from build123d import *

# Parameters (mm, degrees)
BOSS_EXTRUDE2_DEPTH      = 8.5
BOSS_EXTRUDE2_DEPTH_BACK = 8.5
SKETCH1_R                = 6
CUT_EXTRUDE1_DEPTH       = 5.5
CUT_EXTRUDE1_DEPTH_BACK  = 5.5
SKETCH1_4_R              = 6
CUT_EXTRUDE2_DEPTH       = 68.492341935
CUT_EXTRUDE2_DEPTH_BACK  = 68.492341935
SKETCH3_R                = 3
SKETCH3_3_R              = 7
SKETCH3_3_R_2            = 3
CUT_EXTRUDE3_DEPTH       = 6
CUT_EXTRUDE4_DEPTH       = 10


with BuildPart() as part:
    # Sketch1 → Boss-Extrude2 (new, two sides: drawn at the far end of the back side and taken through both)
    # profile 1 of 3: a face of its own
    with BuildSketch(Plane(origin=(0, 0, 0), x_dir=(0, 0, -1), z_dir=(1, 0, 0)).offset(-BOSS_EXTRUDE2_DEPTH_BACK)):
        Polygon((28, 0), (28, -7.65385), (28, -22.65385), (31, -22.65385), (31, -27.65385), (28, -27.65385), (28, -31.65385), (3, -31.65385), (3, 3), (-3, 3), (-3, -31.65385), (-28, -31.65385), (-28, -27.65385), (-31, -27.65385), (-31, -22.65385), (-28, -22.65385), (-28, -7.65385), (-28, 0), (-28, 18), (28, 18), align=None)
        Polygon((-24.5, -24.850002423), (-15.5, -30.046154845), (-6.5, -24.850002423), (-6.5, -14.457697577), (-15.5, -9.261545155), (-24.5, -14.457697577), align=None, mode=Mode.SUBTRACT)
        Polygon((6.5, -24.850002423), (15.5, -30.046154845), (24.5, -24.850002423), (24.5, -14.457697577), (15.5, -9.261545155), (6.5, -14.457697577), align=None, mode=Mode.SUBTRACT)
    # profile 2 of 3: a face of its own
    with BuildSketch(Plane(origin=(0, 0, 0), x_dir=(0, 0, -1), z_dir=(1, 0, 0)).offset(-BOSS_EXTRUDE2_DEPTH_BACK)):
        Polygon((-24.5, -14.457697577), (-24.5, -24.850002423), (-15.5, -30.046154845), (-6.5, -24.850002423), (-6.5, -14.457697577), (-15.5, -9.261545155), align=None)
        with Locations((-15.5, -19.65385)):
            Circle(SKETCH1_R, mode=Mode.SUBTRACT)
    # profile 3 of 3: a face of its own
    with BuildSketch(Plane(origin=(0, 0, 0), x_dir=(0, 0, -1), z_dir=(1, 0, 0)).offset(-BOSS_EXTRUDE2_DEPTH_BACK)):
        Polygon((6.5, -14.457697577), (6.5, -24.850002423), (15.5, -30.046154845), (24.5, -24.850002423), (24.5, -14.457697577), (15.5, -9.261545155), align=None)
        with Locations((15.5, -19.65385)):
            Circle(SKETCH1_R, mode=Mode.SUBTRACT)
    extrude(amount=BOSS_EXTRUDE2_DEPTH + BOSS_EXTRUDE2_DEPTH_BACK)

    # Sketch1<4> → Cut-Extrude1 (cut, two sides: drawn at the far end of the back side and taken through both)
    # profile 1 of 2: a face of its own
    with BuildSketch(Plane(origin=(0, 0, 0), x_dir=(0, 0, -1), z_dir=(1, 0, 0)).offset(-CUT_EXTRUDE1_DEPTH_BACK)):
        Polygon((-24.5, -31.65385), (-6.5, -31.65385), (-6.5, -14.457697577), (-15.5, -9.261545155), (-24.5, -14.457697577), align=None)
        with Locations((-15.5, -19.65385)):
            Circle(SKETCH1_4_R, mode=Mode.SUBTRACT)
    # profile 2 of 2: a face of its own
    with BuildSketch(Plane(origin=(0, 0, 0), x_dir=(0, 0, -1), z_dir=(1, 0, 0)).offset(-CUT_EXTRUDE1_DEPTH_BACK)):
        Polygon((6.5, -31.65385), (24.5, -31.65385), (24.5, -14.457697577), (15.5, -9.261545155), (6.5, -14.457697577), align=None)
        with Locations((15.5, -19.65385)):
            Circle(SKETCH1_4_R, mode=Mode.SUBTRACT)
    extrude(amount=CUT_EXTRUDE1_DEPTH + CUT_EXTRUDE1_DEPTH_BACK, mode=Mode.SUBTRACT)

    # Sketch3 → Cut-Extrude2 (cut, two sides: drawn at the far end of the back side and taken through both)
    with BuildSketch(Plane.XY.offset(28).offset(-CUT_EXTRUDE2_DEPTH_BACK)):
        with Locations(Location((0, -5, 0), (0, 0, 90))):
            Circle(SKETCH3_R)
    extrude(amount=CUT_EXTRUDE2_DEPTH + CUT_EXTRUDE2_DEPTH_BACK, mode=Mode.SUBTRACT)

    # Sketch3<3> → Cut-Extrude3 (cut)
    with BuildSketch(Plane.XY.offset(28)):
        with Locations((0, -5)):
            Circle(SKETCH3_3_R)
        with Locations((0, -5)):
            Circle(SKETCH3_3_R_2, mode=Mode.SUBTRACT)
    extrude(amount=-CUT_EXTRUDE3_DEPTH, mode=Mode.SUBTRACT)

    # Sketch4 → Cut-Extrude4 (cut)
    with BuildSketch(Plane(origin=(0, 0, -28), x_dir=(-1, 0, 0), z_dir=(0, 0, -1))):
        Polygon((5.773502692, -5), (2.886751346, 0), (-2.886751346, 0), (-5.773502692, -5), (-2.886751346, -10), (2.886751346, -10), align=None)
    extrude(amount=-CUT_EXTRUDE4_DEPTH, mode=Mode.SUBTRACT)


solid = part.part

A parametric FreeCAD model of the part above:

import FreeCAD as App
import Part
import Sketcher

V = App.Vector
Q = App.Units.Quantity

doc = App.newDocument("Part")
body = doc.addObject("PartDesign::Body", "Body")

sketch1 = body.newObject("Sketcher::SketchObject", "Sketch")
sketch1.AttachmentSupport = (doc.getObject("YZ_Plane"), [""])
sketch1.MapMode = "FlatFace"
sketch1.addGeometry([
    Part.LineSegment(V(-22.65385, -28, 0), V(18, -28, 0)),
    Part.LineSegment(V(18, -28, 0), V(18, 28, 0)),
    Part.LineSegment(V(18, 28, 0), V(-22.65385, 28, 0)),
    Part.LineSegment(V(-22.65385, 28, 0), V(-22.65385, 31, 0)),
    Part.LineSegment(V(-22.65385, 31, 0), V(-27.65385, 31, 0)),
    Part.LineSegment(V(-27.65385, 31, 0), V(-27.65385, 28, 0)),
    Part.LineSegment(V(-27.65385, 28, 0), V(-31.65385, 28, 0)),
    Part.LineSegment(V(-31.65385, 28, 0), V(-31.65385, 3, 0)),
    Part.LineSegment(V(-31.65385, 3, 0), V(3, 3, 0)),
    Part.LineSegment(V(3, 3, 0), V(3, -3, 0)),
    Part.LineSegment(V(3, -3, 0), V(-31.65385, -3, 0)),
    Part.LineSegment(V(-31.65385, -3, 0), V(-31.65385, -28, 0)),
    Part.LineSegment(V(-31.65385, -28, 0), V(-27.65385, -28, 0)),
    Part.LineSegment(V(-27.65385, -28, 0), V(-27.65385, -31, 0)),
    Part.LineSegment(V(-27.65385, -31, 0), V(-22.65385, -31, 0)),
    Part.LineSegment(V(-22.65385, -31, 0), V(-22.65385, -28, 0)),
    Part.Circle(V(-19.65385, -15.5, 0), V(0, 0, 1), 6),
    Part.Circle(V(-19.65385, 15.5, 0), V(0, 0, 1), 6),
], False)
sketch1.addConstraint([
    Sketcher.Constraint("Coincident", 0, 2, 1, 1),
    Sketcher.Constraint("Coincident", 1, 2, 2, 1),
    Sketcher.Constraint("Coincident", 2, 2, 3, 1),
    Sketcher.Constraint("Coincident", 3, 2, 4, 1),
    Sketcher.Constraint("Coincident", 4, 2, 5, 1),
    Sketcher.Constraint("Coincident", 5, 2, 6, 1),
    Sketcher.Constraint("Coincident", 6, 2, 7, 1),
    Sketcher.Constraint("Coincident", 7, 2, 8, 1),
    Sketcher.Constraint("Coincident", 8, 2, 9, 1),
    Sketcher.Constraint("Coincident", 9, 2, 10, 1),
    Sketcher.Constraint("Coincident", 10, 2, 11, 1),
    Sketcher.Constraint("Coincident", 11, 2, 12, 1),
    Sketcher.Constraint("Coincident", 12, 2, 13, 1),
    Sketcher.Constraint("Coincident", 13, 2, 14, 1),
    Sketcher.Constraint("Coincident", 14, 2, 15, 1),
    Sketcher.Constraint("Coincident", 15, 2, 0, 1),
    Sketcher.Constraint("Horizontal", 0),
    Sketcher.Constraint("Vertical", 1),
    Sketcher.Constraint("Horizontal", 2),
    Sketcher.Constraint("Vertical", 3),
    Sketcher.Constraint("Horizontal", 4),
    Sketcher.Constraint("Vertical", 5),
    Sketcher.Constraint("Horizontal", 6),
    Sketcher.Constraint("Vertical", 7),
    Sketcher.Constraint("Horizontal", 8),
    Sketcher.Constraint("Vertical", 9),
    Sketcher.Constraint("Horizontal", 10),
    Sketcher.Constraint("Vertical", 11),
    Sketcher.Constraint("Horizontal", 12),
    Sketcher.Constraint("Vertical", 13),
    Sketcher.Constraint("Horizontal", 14),
    Sketcher.Constraint("Vertical", 15),
    Sketcher.Constraint("Equal", 16, 17),
    Sketcher.Constraint("Symmetric", 16, 3, 17, 3, -1),
    Sketcher.Constraint("Symmetric", 7, 2, 10, 2, -1),
    Sketcher.Constraint("Symmetric", 5, 2, 12, 2, -1),
    Sketcher.Constraint("Symmetric", 3, 2, 14, 2, -1),
    Sketcher.Constraint("Horizontal", 2, 2, 5, 2),
    Sketcher.Constraint("Horizontal", 0, 2, 11, 2),
    Sketcher.Constraint("Diameter", 16, Q("12 mm")),
    Sketcher.Constraint("DistanceX", 4, 2, 4, 1, Q("5 mm")),
    Sketcher.Constraint("DistanceX", 6, 2, 6, 1, Q("4 mm")),
    Sketcher.Constraint("DistanceY", 1, 1, 1, 2, Q("56 mm")),
    Sketcher.Constraint("DistanceY", 3, 1, 3, 2, Q("3 mm")),
    Sketcher.Constraint("DistanceY", 7, 2, 7, 1, Q("25 mm")),
    Sketcher.Constraint("DistanceX", -1, 1, 0, 2, Q("18 mm")),
    Sketcher.Constraint("DistanceX", -1, 1, 8, 2, Q("3 mm")),
    Sketcher.Constraint("DistanceY", 16, 3, 17, 3, Q("31 mm")),
    Sketcher.Constraint("DistanceX", 2, 2, 17, 3, Q("3 mm")),
    Sketcher.Constraint("DistanceX", 0, 1, 0, 2, Q("40.65385 mm")),
])
pad1 = body.newObject("PartDesign::Pad", "Pad")
pad1.Profile = sketch1
pad1.Type = "TwoLengths"
pad1.Length = 8.5
pad1.Length2 = 8.5

sketch2 = body.newObject("Sketcher::SketchObject", "Sketch001")
sketch2.AttachmentSupport = (doc.getObject("YZ_Plane"), [""])
sketch2.MapMode = "FlatFace"
sketch2.addGeometry([
    Part.LineSegment(V(-31.65385, 24.5, 0), V(-31.65385, 6.5, 0)),
    Part.LineSegment(V(-31.65385, 6.5, 0), V(-14.457698, 6.5, 0)),
    Part.LineSegment(V(-14.457698, 6.5, 0), V(-9.261545, 15.5, 0)),
    Part.LineSegment(V(-9.261545, 15.5, 0), V(-14.457698, 24.5, 0)),
    Part.LineSegment(V(-14.457698, 24.5, 0), V(-31.65385, 24.5, 0)),
    Part.Circle(V(-19.65385, 15.5, 0), V(0, 0, 1), 6),
    Part.LineSegment(V(-31.65385, -6.5, 0), V(-31.65385, -24.5, 0)),
    Part.LineSegment(V(-31.65385, -24.5, 0), V(-14.457698, -24.5, 0)),
    Part.LineSegment(V(-14.457698, -24.5, 0), V(-9.261545, -15.5, 0)),
    Part.LineSegment(V(-9.261545, -15.5, 0), V(-14.457698, -6.5, 0)),
    Part.LineSegment(V(-14.457698, -6.5, 0), V(-31.65385, -6.5, 0)),
    Part.Circle(V(-19.65385, -15.5, 0), V(0, 0, 1), 6),
], False)
sketch2.addConstraint([
    Sketcher.Constraint("Coincident", 0, 2, 1, 1),
    Sketcher.Constraint("Coincident", 1, 2, 2, 1),
    Sketcher.Constraint("Coincident", 2, 2, 3, 1),
    Sketcher.Constraint("Coincident", 3, 2, 4, 1),
    Sketcher.Constraint("Coincident", 4, 2, 0, 1),
    Sketcher.Constraint("Coincident", 6, 2, 7, 1),
    Sketcher.Constraint("Coincident", 7, 2, 8, 1),
    Sketcher.Constraint("Coincident", 8, 2, 9, 1),
    Sketcher.Constraint("Coincident", 9, 2, 10, 1),
    Sketcher.Constraint("Coincident", 10, 2, 6, 1),
    Sketcher.Constraint("Vertical", 0),
    Sketcher.Constraint("Horizontal", 1),
    Sketcher.Constraint("Horizontal", 4),
    Sketcher.Constraint("Vertical", 6),
    Sketcher.Constraint("Horizontal", 7),
    Sketcher.Constraint("Horizontal", 10),
    Sketcher.Constraint("Equal", 5, 11),
    Sketcher.Constraint("Symmetric", 5, 3, 11, 3, -1),
    Sketcher.Constraint("Symmetric", 4, 2, 6, 2, -1),
    Sketcher.Constraint("Symmetric", 2, 2, 8, 2, -1),
    Sketcher.Constraint("Symmetric", 1, 2, 9, 2, -1),
    Sketcher.Constraint("Parallel", 2, 8),
    Sketcher.Constraint("Parallel", 3, 9),
    Sketcher.Constraint("Horizontal", 5, 3, 2, 2),
    Sketcher.Constraint("Vertical", 1, 2, 3, 2),
    Sketcher.Constraint("Diameter", 5, Q("12 mm")),
    Sketcher.Constraint("DistanceY", 0, 2, 0, 1, Q("18 mm")),
    Sketcher.Constraint("Angle", 2, Q("60 deg")),
    Sketcher.Constraint("DistanceY", 11, 3, 5, 3, Q("31 mm")),
    Sketcher.Constraint("DistanceX", 0, 2, 5, 3, Q("12 mm")),
    Sketcher.Constraint("DistanceX", 1, 1, 1, 2, Q("17.196152 mm")),
    Sketcher.Constraint("DistanceX", 5, 3, -1, 1, Q("19.65385 mm")),
])
pocket1 = body.newObject("PartDesign::Pocket", "Pocket")
pocket1.Profile = sketch2
pocket1.Type = "TwoLengths"
pocket1.Length = 5.5
pocket1.Length2 = 5.5
pocket1.Reversed = True

sketch3 = body.newObject("Sketcher::SketchObject", "Sketch002")
sketch3.AttachmentSupport = (doc.getObject("XY_Plane"), [""])
sketch3.MapMode = "FlatFace"
sketch3.AttachmentOffset = App.Placement(V(0, 0, 28), App.Rotation())
sketch3.addGeometry(Part.Circle(V(0, -5, 0), V(0, 0, 1), 3), False)
sketch3.addConstraint([
    Sketcher.Constraint("PointOnObject", 0, 3, -2),
    Sketcher.Constraint("Diameter", 0, Q("6 mm")),
    Sketcher.Constraint("DistanceY", 0, 3, -1, 1, Q("5 mm")),
])
pocket2 = body.newObject("PartDesign::Pocket", "Pocket001")
pocket2.Profile = sketch3
pocket2.Type = "ThroughAll"
pocket2.Midplane = True

sketch4 = body.newObject("Sketcher::SketchObject", "Sketch003")
sketch4.AttachmentSupport = (doc.getObject("XY_Plane"), [""])
sketch4.MapMode = "FlatFace"
sketch4.AttachmentOffset = App.Placement(V(0, 0, 28), App.Rotation())
sketch4.addGeometry([
    Part.Circle(V(0, -5, 0), V(0, 0, 1), 7),
    Part.Circle(V(0, -5, 0), V(0, 0, 1), 3),
], False)
sketch4.addConstraint([
    Sketcher.Constraint("Coincident", 1, 3, 0, 3),
    Sketcher.Constraint("PointOnObject", 0, 3, -2),
    Sketcher.Constraint("Diameter", 0, Q("14 mm")),
    Sketcher.Constraint("Diameter", 1, Q("6 mm")),
    Sketcher.Constraint("DistanceY", 0, 3, -1, 1, Q("5 mm")),
])
pocket3 = body.newObject("PartDesign::Pocket", "Pocket002")
pocket3.Profile = sketch4
pocket3.Length = 6

sketch5 = body.newObject("Sketcher::SketchObject", "Sketch004")
sketch5.AttachmentSupport = (doc.getObject("XY_Plane"), [""])
sketch5.MapMode = "FlatFace"
sketch5.AttachmentOffset = App.Placement(V(0, 0, -28), App.Rotation())
sketch5.addGeometry([
    Part.LineSegment(V(-5.773503, -5, 0), V(-2.886751, 0, 0)),
    Part.LineSegment(V(-2.886751, 0, 0), V(2.886751, 0, 0)),
    Part.LineSegment(V(2.886751, 0, 0), V(5.773503, -5, 0)),
    Part.LineSegment(V(5.773503, -5, 0), V(2.886751, -10, 0)),
    Part.LineSegment(V(2.886751, -10, 0), V(-2.886751, -10, 0)),
    Part.LineSegment(V(-2.886751, -10, 0), V(-5.773503, -5, 0)),
], False)
sketch5.addConstraint([
    Sketcher.Constraint("Coincident", 0, 2, 1, 1),
    Sketcher.Constraint("Coincident", 1, 2, 2, 1),
    Sketcher.Constraint("Coincident", 2, 2, 3, 1),
    Sketcher.Constraint("Coincident", 3, 2, 4, 1),
    Sketcher.Constraint("Coincident", 4, 2, 5, 1),
    Sketcher.Constraint("Coincident", 5, 2, 0, 1),
    Sketcher.Constraint("Horizontal", 1),
    Sketcher.Constraint("Horizontal", 4),
    Sketcher.Constraint("Symmetric", 0, 2, 1, 2, -1, 1),
    Sketcher.Constraint("Symmetric", 2, 2, 5, 2, -2),
    Sketcher.Constraint("Parallel", 0, 3),
    Sketcher.Constraint("Parallel", 2, 5),
    Sketcher.Constraint("Vertical", 1, 2, 3, 2),
    Sketcher.Constraint("Angle", 0, Q("60 deg")),
    Sketcher.Constraint("DistanceY", 2, 2, -1, 1, Q("5 mm")),
    Sketcher.Constraint("DistanceX", 1, 1, 1, 2, Q("5.773503 mm")),
])
pocket4 = body.newObject("PartDesign::Pocket", "Pocket003")
pocket4.Profile = sketch5
pocket4.Length = 10
pocket4.Reversed = True

doc.recompute()
